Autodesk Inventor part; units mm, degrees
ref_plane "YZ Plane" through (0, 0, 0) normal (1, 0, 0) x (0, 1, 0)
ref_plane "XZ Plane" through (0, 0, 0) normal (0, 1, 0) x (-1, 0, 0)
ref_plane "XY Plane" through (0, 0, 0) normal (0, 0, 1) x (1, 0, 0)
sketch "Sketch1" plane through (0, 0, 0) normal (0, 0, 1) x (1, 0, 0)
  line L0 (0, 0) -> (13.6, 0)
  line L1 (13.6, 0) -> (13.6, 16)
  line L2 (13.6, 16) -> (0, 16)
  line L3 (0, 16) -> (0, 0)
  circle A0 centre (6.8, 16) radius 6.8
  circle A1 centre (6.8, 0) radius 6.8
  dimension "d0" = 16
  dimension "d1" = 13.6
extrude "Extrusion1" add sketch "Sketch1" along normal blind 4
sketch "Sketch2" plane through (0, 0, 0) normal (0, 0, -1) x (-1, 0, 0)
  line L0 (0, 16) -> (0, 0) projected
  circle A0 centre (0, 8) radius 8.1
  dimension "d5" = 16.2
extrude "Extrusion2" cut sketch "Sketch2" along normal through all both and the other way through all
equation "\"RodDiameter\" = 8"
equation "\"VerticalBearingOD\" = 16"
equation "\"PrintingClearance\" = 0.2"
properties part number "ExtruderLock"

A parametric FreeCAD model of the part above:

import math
import FreeCAD as App
import Part
import Sketcher

V = App.Vector
Q = App.Units.Quantity

doc = App.newDocument("Part")
body = doc.addObject("PartDesign::Body", "Body")

# Sketch on XY plane
sketch1 = body.newObject("Sketcher::SketchObject", "Sketch")
sketch1.AttachmentSupport = (doc.getObject("XY_Plane"), [""])
sketch1.MapMode = "FlatFace"
sketch1.addGeometry([
    Part.LineSegment(V(0, 16, 0), V(0, 0, 0)),
    Part.ArcOfCircle(Part.Circle(V(6.8, 0, 0), V(0, 0, 1), 6.8), math.radians(180), math.radians(360)),
    Part.LineSegment(V(13.6, 0, 0), V(13.6, 16, 0)),
    Part.ArcOfCircle(Part.Circle(V(6.8, 16, 0), V(0, 0, 1), 6.8), math.radians(0), math.radians(180)),
], False)
sketch1.addConstraint([
    Sketcher.Constraint("Tangent", 0, 2, 1, 1),
    Sketcher.Constraint("Tangent", 1, 2, 2, 1),
    Sketcher.Constraint("Tangent", 2, 2, 3, 1),
    Sketcher.Constraint("Tangent", 3, 2, 0, 1),
    Sketcher.Constraint("Vertical", 0),
    Sketcher.Constraint("Vertical", 2),
    Sketcher.Constraint("Coincident", 0, 2, -1, 1),
    Sketcher.Constraint("Radius", 1, Q("6.8 mm")),
    Sketcher.Constraint("DistanceY", 0, 2, 0, 1, Q("16 mm")),
])
pad1 = body.newObject("PartDesign::Pad", "Pad")
pad1.Profile = sketch1
pad1.Length = 4

# Sketch on XY plane
sketch2 = body.newObject("Sketcher::SketchObject", "Sketch001")
sketch2.AttachmentSupport = (doc.getObject("XY_Plane"), [""])
sketch2.MapMode = "FlatFace"
sketch2.addGeometry(Part.Circle(V(0, 8, 0), V(0, 0, 1), 8.1), False)
sketch2.addConstraint([
    Sketcher.Constraint("PointOnObject", 0, 3, -2),
    Sketcher.Constraint("Diameter", 0, Q("16.2 mm")),
    Sketcher.Constraint("DistanceY", -1, 1, 0, 3, Q("8 mm")),
])
pocket1 = body.newObject("PartDesign::Pocket", "Pocket")
pocket1.Profile = sketch2
pocket1.Type = "ThroughAll"
pocket1.Midplane = True

doc.recompute()
